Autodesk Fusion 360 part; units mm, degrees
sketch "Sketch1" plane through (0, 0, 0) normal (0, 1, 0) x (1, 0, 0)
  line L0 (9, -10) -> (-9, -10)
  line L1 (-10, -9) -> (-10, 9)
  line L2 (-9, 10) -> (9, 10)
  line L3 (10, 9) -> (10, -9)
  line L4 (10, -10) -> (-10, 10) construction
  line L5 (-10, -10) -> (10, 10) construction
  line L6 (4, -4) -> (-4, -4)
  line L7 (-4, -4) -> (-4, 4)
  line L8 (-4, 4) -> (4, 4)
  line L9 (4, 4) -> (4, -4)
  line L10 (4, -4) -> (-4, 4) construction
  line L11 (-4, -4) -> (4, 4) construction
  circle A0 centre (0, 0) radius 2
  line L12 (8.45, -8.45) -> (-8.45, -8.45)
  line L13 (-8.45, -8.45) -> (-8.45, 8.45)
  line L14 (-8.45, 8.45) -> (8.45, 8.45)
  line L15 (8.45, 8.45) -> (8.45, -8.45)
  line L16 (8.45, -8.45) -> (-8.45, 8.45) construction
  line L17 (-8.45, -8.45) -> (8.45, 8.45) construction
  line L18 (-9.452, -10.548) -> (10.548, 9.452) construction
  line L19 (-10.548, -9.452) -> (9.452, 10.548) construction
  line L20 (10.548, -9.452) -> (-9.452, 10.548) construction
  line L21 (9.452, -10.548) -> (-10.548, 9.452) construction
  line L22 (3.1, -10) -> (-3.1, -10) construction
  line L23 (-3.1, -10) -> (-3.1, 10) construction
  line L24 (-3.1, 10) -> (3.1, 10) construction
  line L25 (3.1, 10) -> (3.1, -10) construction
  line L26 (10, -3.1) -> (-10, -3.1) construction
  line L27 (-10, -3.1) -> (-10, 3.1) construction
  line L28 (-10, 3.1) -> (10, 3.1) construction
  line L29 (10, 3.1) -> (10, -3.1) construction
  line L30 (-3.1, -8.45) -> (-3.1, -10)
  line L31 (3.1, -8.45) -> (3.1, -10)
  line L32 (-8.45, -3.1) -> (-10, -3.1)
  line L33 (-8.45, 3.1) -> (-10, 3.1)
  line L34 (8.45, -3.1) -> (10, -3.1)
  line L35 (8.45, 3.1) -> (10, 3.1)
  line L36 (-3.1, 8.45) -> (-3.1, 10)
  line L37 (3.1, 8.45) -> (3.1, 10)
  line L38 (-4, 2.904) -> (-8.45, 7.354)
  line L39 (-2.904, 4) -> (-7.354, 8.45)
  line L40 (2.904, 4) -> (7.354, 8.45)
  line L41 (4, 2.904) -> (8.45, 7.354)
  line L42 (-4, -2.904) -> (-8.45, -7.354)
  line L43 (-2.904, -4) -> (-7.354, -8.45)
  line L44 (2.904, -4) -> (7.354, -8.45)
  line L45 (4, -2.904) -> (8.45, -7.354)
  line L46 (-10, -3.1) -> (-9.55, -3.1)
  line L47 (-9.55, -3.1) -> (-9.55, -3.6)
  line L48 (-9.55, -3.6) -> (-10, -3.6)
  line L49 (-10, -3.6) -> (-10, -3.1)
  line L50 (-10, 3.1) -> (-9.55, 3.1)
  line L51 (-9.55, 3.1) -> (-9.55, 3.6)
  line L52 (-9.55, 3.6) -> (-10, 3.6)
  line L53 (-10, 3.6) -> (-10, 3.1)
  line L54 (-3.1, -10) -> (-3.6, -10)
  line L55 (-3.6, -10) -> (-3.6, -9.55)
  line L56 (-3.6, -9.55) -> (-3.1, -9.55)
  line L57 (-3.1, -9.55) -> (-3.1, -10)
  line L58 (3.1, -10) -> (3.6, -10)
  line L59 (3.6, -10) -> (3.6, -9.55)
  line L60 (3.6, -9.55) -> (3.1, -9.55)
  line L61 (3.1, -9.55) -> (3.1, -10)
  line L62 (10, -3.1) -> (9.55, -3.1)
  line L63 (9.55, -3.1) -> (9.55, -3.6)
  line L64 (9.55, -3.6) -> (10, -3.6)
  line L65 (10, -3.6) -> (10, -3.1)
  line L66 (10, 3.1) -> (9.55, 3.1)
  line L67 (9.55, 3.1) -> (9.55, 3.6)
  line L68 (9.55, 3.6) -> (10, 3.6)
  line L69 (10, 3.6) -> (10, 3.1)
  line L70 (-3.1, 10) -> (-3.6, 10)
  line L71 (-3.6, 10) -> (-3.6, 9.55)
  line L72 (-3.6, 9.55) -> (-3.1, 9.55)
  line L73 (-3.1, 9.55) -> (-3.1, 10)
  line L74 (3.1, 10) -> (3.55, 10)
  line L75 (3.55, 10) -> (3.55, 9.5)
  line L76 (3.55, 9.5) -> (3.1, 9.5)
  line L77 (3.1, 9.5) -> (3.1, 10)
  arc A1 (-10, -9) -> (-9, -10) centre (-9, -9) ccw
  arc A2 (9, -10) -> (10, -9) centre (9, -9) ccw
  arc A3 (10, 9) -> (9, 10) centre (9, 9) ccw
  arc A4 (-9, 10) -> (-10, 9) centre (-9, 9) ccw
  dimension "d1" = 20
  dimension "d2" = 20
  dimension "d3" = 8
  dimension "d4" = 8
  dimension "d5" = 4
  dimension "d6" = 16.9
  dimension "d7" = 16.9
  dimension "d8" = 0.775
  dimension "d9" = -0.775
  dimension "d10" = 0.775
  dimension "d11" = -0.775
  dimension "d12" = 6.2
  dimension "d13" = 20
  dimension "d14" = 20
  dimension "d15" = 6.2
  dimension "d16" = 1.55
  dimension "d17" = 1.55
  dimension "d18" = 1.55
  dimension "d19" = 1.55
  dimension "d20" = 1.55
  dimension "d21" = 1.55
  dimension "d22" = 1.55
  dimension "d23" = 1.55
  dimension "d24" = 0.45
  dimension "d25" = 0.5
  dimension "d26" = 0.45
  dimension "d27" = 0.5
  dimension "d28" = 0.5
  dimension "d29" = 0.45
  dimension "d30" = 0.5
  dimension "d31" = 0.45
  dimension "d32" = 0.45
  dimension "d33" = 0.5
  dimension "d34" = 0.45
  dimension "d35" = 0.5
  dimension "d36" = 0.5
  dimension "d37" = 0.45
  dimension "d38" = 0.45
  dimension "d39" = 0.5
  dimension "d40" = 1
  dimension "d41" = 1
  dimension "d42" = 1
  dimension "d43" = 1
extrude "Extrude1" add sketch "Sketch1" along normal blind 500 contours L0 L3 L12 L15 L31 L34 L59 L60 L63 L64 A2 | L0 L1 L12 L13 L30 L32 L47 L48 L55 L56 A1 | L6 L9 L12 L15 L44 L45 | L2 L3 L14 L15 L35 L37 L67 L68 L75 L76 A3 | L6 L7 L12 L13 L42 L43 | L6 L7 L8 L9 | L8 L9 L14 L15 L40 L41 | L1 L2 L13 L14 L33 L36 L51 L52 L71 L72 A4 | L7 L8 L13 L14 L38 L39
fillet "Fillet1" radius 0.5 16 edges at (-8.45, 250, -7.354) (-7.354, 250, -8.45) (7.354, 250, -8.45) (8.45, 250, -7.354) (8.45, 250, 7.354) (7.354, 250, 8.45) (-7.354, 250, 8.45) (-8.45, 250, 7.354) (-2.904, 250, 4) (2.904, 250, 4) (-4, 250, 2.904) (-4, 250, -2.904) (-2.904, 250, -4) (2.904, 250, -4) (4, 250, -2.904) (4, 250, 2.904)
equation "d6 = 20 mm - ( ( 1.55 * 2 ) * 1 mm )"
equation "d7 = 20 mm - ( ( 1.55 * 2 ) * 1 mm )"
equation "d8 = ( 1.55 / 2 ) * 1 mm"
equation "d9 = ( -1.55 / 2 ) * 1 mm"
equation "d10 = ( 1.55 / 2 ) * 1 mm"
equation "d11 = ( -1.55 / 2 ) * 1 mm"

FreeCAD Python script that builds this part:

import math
import FreeCAD as App
import Part
import Sketcher

V = App.Vector


def edges_at(feature, points):
    """Names of the edges that pass closest to the given points."""
    edges = feature.Shape.Edges
    near = lambda p: min(range(len(edges)), key=lambda i: edges[i].distToShape(Part.Vertex(*p))[0])
    return sorted({f"Edge{near(p) + 1}" for p in points})

doc = App.newDocument("Part")
params = doc.addObject("Spreadsheet::Sheet", "Params")
for row, (alias, value) in enumerate([
    ("sketch1_diameter", "4 mm"),
    ("sketch1_radius", "1 mm"),
    ("sketch1_width", "0.5 mm"),
    ("sketch1_width2", "0.45 mm"),
    ("sketch1_width3", "5.4 mm"),
    ("pad1_length", "500 mm"),
    ("fillet_radius", "0.5 mm"),
], start=1):
    params.set(f"A{row}", alias)
    params.set(f"B{row}", "=" + value)
    params.setAlias(f"B{row}", alias)

body = doc.addObject("PartDesign::Body", "Body")

# Sketch on XZ plane
sketch1 = doc.addObject("Sketcher::SketchObject", "Sketch")
body.addObject(sketch1)
sketch1.AttachmentSupport = (doc.XZ_Plane, [""])
sketch1.MapMode = "FlatFace"
sketch1.addGeometry([
    Part.LineSegment(V(3.6, 10, 0), V(9, 10, 0)),  # 0
    Part.ArcOfCircle(Part.Circle(V(9, 9, 0), V(0, 0, 1), 1), math.radians(0), math.radians(90)),  # 1
    Part.LineSegment(V(10, 9, 0), V(10, 3.6, 0)),  # 2
    Part.LineSegment(V(10, 3.6, 0), V(9.55, 3.6, 0)),  # 3
    Part.LineSegment(V(9.55, 3.6, 0), V(9.55, 3.1, 0)),  # 4
    Part.LineSegment(V(9.55, 3.1, 0), V(8.45, 3.1, 0)),  # 5
    Part.LineSegment(V(8.45, 3.1, 0), V(8.45, 7.35, 0)),  # 6
    Part.LineSegment(V(8.45, 7.35, 0), V(4, 2.9, 0)),  # 7
    Part.LineSegment(V(4, 2.9, 0), V(4, -2.9, 0)),  # 8
    Part.LineSegment(V(4, -2.9, 0), V(8.45, -7.35, 0)),  # 9
    Part.LineSegment(V(8.45, -7.35, 0), V(8.45, -3.1, 0)),  # 10
    Part.LineSegment(V(8.45, -3.1, 0), V(9.55, -3.1, 0)),  # 11
    Part.LineSegment(V(9.55, -3.1, 0), V(9.55, -3.6, 0)),  # 12
    Part.LineSegment(V(9.55, -3.6, 0), V(10, -3.6, 0)),  # 13
    Part.LineSegment(V(10, -3.6, 0), V(10, -9, 0)),  # 14
    Part.ArcOfCircle(Part.Circle(V(9, -9, 0), V(0, 0, 1), 1), math.radians(-90), math.radians(0)),  # 15
    Part.LineSegment(V(9, -10, 0), V(3.55, -10, 0)),  # 16
    Part.LineSegment(V(3.55, -10, 0), V(3.55, -9.5, 0)),  # 17
    Part.LineSegment(V(3.55, -9.5, 0), V(3.1, -9.5, 0)),  # 18
    Part.LineSegment(V(3.1, -9.5, 0), V(3.1, -8.45, 0)),  # 19
    Part.LineSegment(V(3.1, -8.45, 0), V(7.35, -8.45, 0)),  # 20
    Part.LineSegment(V(7.35, -8.45, 0), V(2.9, -4, 0)),  # 21
    Part.LineSegment(V(2.9, -4, 0), V(-2.9, -4, 0)),  # 22
    Part.LineSegment(V(-2.9, -4, 0), V(-7.35, -8.45, 0)),  # 23
    Part.LineSegment(V(-7.35, -8.45, 0), V(-3.1, -8.45, 0)),  # 24
    Part.LineSegment(V(-3.1, -8.45, 0), V(-3.1, -9.55, 0)),  # 25
    Part.LineSegment(V(-3.1, -9.55, 0), V(-3.6, -9.55, 0)),  # 26
    Part.LineSegment(V(-3.6, -9.55, 0), V(-3.6, -10, 0)),  # 27
    Part.LineSegment(V(-3.6, -10, 0), V(-9, -10, 0)),  # 28
    Part.ArcOfCircle(Part.Circle(V(-9, -9, 0), V(0, 0, 1), 1), math.radians(180), math.radians(270)),  # 29
    Part.LineSegment(V(-10, -9, 0), V(-10, -3.6, 0)),  # 30
    Part.LineSegment(V(-10, -3.6, 0), V(-9.55, -3.6, 0)),  # 31
    Part.LineSegment(V(-9.55, -3.6, 0), V(-9.55, -3.1, 0)),  # 32
    Part.LineSegment(V(-9.55, -3.1, 0), V(-8.45, -3.1, 0)),  # 33
    Part.LineSegment(V(-8.45, -3.1, 0), V(-8.45, -7.35, 0)),  # 34
    Part.LineSegment(V(-8.45, -7.35, 0), V(-4, -2.9, 0)),  # 35
    Part.LineSegment(V(-4, -2.9, 0), V(-4, 2.9, 0)),  # 36
    Part.LineSegment(V(-4, 2.9, 0), V(-8.45, 7.35, 0)),  # 37
    Part.LineSegment(V(-8.45, 7.35, 0), V(-8.45, 3.1, 0)),  # 38
    Part.LineSegment(V(-8.45, 3.1, 0), V(-9.55, 3.1, 0)),  # 39
    Part.LineSegment(V(-9.55, 3.1, 0), V(-9.55, 3.6, 0)),  # 40
    Part.LineSegment(V(-9.55, 3.6, 0), V(-10, 3.6, 0)),  # 41
    Part.LineSegment(V(-10, 3.6, 0), V(-10, 9, 0)),  # 42
    Part.ArcOfCircle(Part.Circle(V(-9, 9, 0), V(0, 0, 1), 1), math.radians(90), math.radians(180)),  # 43
    Part.LineSegment(V(-9, 10, 0), V(-3.6, 10, 0)),  # 44
    Part.LineSegment(V(-3.6, 10, 0), V(-3.6, 9.55, 0)),  # 45
    Part.LineSegment(V(-3.6, 9.55, 0), V(-3.1, 9.55, 0)),  # 46
    Part.LineSegment(V(-3.1, 9.55, 0), V(-3.1, 8.45, 0)),  # 47
    Part.LineSegment(V(-3.1, 8.45, 0), V(-7.35, 8.45, 0)),  # 48
    Part.LineSegment(V(-7.35, 8.45, 0), V(-2.9, 4, 0)),  # 49
    Part.LineSegment(V(-2.9, 4, 0), V(2.9, 4, 0)),  # 50
    Part.LineSegment(V(2.9, 4, 0), V(7.35, 8.45, 0)),  # 51
    Part.LineSegment(V(7.35, 8.45, 0), V(3.1, 8.45, 0)),  # 52
    Part.LineSegment(V(3.1, 8.45, 0), V(3.1, 9.55, 0)),  # 53
    Part.LineSegment(V(3.1, 9.55, 0), V(3.6, 9.55, 0)),  # 54
    Part.LineSegment(V(3.6, 9.55, 0), V(3.6, 10, 0)),  # 55
    Part.Circle(V(0, 0, 0), V(0, 0, 1), 2),  # 56
], False)
sketch1.addConstraint([
    Sketcher.Constraint("Tangent", 0, 2, 1, 2),
    Sketcher.Constraint("Tangent", 1, 1, 2, 1),
    Sketcher.Constraint("Coincident", 2, 2, 3, 1),
    Sketcher.Constraint("Coincident", 3, 2, 4, 1),
    Sketcher.Constraint("Coincident", 4, 2, 5, 1),
    Sketcher.Constraint("Coincident", 5, 2, 6, 1),
    Sketcher.Constraint("Coincident", 6, 2, 7, 1),
    Sketcher.Constraint("Coincident", 7, 2, 8, 1),
    Sketcher.Constraint("Coincident", 8, 2, 9, 1),
    Sketcher.Constraint("Coincident", 9, 2, 10, 1),
    Sketcher.Constraint("Coincident", 10, 2, 11, 1),
    Sketcher.Constraint("Coincident", 11, 2, 12, 1),
    Sketcher.Constraint("Coincident", 12, 2, 13, 1),
    Sketcher.Constraint("Coincident", 13, 2, 14, 1),
    Sketcher.Constraint("Tangent", 14, 2, 15, 2),
    Sketcher.Constraint("Tangent", 15, 1, 16, 1),
    Sketcher.Constraint("Coincident", 16, 2, 17, 1),
    Sketcher.Constraint("Coincident", 17, 2, 18, 1),
    Sketcher.Constraint("Coincident", 18, 2, 19, 1),
    Sketcher.Constraint("Coincident", 19, 2, 20, 1),
    Sketcher.Constraint("Coincident", 20, 2, 21, 1),
    Sketcher.Constraint("Coincident", 21, 2, 22, 1),
    Sketcher.Constraint("Coincident", 22, 2, 23, 1),
    Sketcher.Constraint("Coincident", 23, 2, 24, 1),
    Sketcher.Constraint("Coincident", 24, 2, 25, 1),
    Sketcher.Constraint("Coincident", 25, 2, 26, 1),
    Sketcher.Constraint("Coincident", 26, 2, 27, 1),
    Sketcher.Constraint("Coincident", 27, 2, 28, 1),
    Sketcher.Constraint("Tangent", 28, 2, 29, 2),
    Sketcher.Constraint("Tangent", 29, 1, 30, 1),
    Sketcher.Constraint("Coincident", 30, 2, 31, 1),
    Sketcher.Constraint("Coincident", 31, 2, 32, 1),
    Sketcher.Constraint("Coincident", 32, 2, 33, 1),
    Sketcher.Constraint("Coincident", 33, 2, 34, 1),
    Sketcher.Constraint("Coincident", 34, 2, 35, 1),
    Sketcher.Constraint("Coincident", 35, 2, 36, 1),
    Sketcher.Constraint("Coincident", 36, 2, 37, 1),
    Sketcher.Constraint("Coincident", 37, 2, 38, 1),
    Sketcher.Constraint("Coincident", 38, 2, 39, 1),
    Sketcher.Constraint("Coincident", 39, 2, 40, 1),
    Sketcher.Constraint("Coincident", 40, 2, 41, 1),
    Sketcher.Constraint("Coincident", 41, 2, 42, 1),
    Sketcher.Constraint("Tangent", 42, 2, 43, 2),
    Sketcher.Constraint("Tangent", 43, 1, 44, 1),
    Sketcher.Constraint("Coincident", 44, 2, 45, 1),
    Sketcher.Constraint("Coincident", 45, 2, 46, 1),
    Sketcher.Constraint("Coincident", 46, 2, 47, 1),
    Sketcher.Constraint("Coincident", 47, 2, 48, 1),
    Sketcher.Constraint("Coincident", 48, 2, 49, 1),
    Sketcher.Constraint("Coincident", 49, 2, 50, 1),
    Sketcher.Constraint("Coincident", 50, 2, 51, 1),
    Sketcher.Constraint("Coincident", 51, 2, 52, 1),
    Sketcher.Constraint("Coincident", 52, 2, 53, 1),
    Sketcher.Constraint("Coincident", 53, 2, 54, 1),
    Sketcher.Constraint("Coincident", 54, 2, 55, 1),
    Sketcher.Constraint("Coincident", 55, 2, 0, 1),
    Sketcher.Constraint("Horizontal", 0),
    Sketcher.Constraint("Vertical", 2),
    Sketcher.Constraint("Horizontal", 3),
    Sketcher.Constraint("Vertical", 4),
    Sketcher.Constraint("Horizontal", 5),
    Sketcher.Constraint("Vertical", 6),
    Sketcher.Constraint("Vertical", 8),
    Sketcher.Constraint("Vertical", 10),
    Sketcher.Constraint("Horizontal", 11),
    Sketcher.Constraint("Vertical", 12),
    Sketcher.Constraint("Horizontal", 13),
    Sketcher.Constraint("Vertical", 14),
    Sketcher.Constraint("Horizontal", 16),
    Sketcher.Constraint("Vertical", 17),
    Sketcher.Constraint("Horizontal", 18),
    Sketcher.Constraint("Vertical", 19),
    Sketcher.Constraint("Horizontal", 20),
    Sketcher.Constraint("Horizontal", 22),
    Sketcher.Constraint("Horizontal", 24),
    Sketcher.Constraint("Vertical", 25),
    Sketcher.Constraint("Horizontal", 26),
    Sketcher.Constraint("Vertical", 27),
    Sketcher.Constraint("Horizontal", 28),
    Sketcher.Constraint("Vertical", 30),
    Sketcher.Constraint("Horizontal", 31),
    Sketcher.Constraint("Vertical", 32),
    Sketcher.Constraint("Horizontal", 33),
    Sketcher.Constraint("Vertical", 34),
    Sketcher.Constraint("Vertical", 36),
    Sketcher.Constraint("Vertical", 38),
    Sketcher.Constraint("Horizontal", 39),
    Sketcher.Constraint("Vertical", 40),
    Sketcher.Constraint("Horizontal", 41),
    Sketcher.Constraint("Vertical", 42),
    Sketcher.Constraint("Horizontal", 44),
    Sketcher.Constraint("Vertical", 45),
    Sketcher.Constraint("Horizontal", 46),
    Sketcher.Constraint("Vertical", 47),
    Sketcher.Constraint("Horizontal", 48),
    Sketcher.Constraint("Horizontal", 50),
    Sketcher.Constraint("Horizontal", 52),
    Sketcher.Constraint("Vertical", 53),
    Sketcher.Constraint("Horizontal", 54),
    Sketcher.Constraint("Vertical", 55),
    Sketcher.Constraint("Coincident", 56, 3, -1, 1),
    Sketcher.Constraint("Equal", 1, 15),
    Sketcher.Constraint("Equal", 15, 29),
    Sketcher.Constraint("Equal", 29, 43),
    Sketcher.Constraint("Symmetric", 1, 3, 29, 3, -1, 1),
    Sketcher.Constraint("Symmetric", 15, 3, 43, 3, -1, 1),
    Sketcher.Constraint("Symmetric", 3, 2, 31, 2, -1, 1),
    Sketcher.Constraint("Symmetric", 5, 2, 33, 2, -1, 1),
    Sketcher.Constraint("Symmetric", 7, 2, 35, 2, -1, 1),
    Sketcher.Constraint("Symmetric", 9, 2, 37, 2, -1, 1),
    Sketcher.Constraint("Symmetric", 11, 2, 39, 2, -1, 1),
    Sketcher.Constraint("Symmetric", 19, 2, 47, 2, -1, 1),
    Sketcher.Constraint("Symmetric", 21, 2, 49, 2, -1, 1),
    Sketcher.Constraint("Symmetric", 23, 2, 51, 2, -1, 1),
    Sketcher.Constraint("Symmetric", 25, 2, 53, 2, -1, 1),
    Sketcher.Constraint("Symmetric", 15, 3, 29, 3, -2),
    Sketcher.Constraint("Symmetric", 20, 2, 23, 2, -2),
    Sketcher.Constraint("Symmetric", 12, 2, 31, 2, -2),
    Sketcher.Constraint("Symmetric", 10, 2, 33, 2, -2),
    Sketcher.Constraint("Symmetric", 46, 2, 53, 2, -2),
    Sketcher.Constraint("Perpendicular", 7, 9),
    Sketcher.Constraint("Parallel", 9, 21),
    Sketcher.Constraint("Perpendicular", 21, 23),
    Sketcher.Constraint("Parallel", 23, 35),
    Sketcher.Constraint("Perpendicular", 35, 37),
    Sketcher.Constraint("Parallel", 37, 49),
    Sketcher.Constraint("Perpendicular", 49, 51),
    Sketcher.Constraint("Horizontal", 9, 2, 34, 2),
    Sketcher.Constraint("Horizontal", 8, 2, 35, 2),
    Sketcher.Constraint("Horizontal", 3, 2, 40, 2),
    Sketcher.Constraint("Vertical", 27, 2, 44, 2),
    Sketcher.Constraint("Equal", 13, 18),
    Sketcher.Constraint("Equal", 0, 28),
    Sketcher.Constraint("Equal", 44, 2),
    Sketcher.Constraint("Equal", 54, 4),
    Sketcher.Constraint("Equal", 52, 6),
    Sketcher.Constraint("Equal", 50, 8),
    Sketcher.Constraint("Equal", 12, 17),
    Sketcher.Constraint("Equal", 39, 25),
    Sketcher.Constraint("Equal", 41, 27),
    Sketcher.Constraint("Equal", 9, 21),
    Sketcher.Constraint("Diameter", 56, 4.0),
    Sketcher.Constraint("Radius", 1, 1.0),
    Sketcher.Constraint("DistanceX", 26, 2, 26, 1, 0.5),
    Sketcher.Constraint("DistanceX", -1, 1, 7, 2, 4.0),
    Sketcher.Constraint("DistanceX", 3, 2, 3, 1, 0.45),
    Sketcher.Constraint("DistanceX", 0, 1, 0, 2, 5.4),
    Sketcher.Constraint("DistanceX", 5, 2, 5, 1, 1.1),
    Sketcher.Constraint("DistanceX", -1, 1, 1, 3, 9.0),
    Sketcher.Constraint("DistanceX", 20, 1, 20, 2, 4.254),
])
sketch1.setExpression("Constraints[141]", "Params.sketch1_diameter")
sketch1.setExpression("Constraints[142]", "Params.sketch1_radius")
sketch1.setExpression("Constraints[143]", "Params.sketch1_width")
sketch1.setExpression("Constraints[145]", "Params.sketch1_width2")
sketch1.setExpression("Constraints[146]", "Params.sketch1_width3")
pad1 = doc.addObject("PartDesign::Pad", "Pad")
body.addObject(pad1)
pad1.Profile = sketch1
pad1.setExpression("Length", "Params.pad1_length")
pad1.Reversed = True
doc.recompute()

fillet = doc.addObject("PartDesign::Fillet", "Fillet")
body.addObject(fillet)
fillet.Base = (pad1, edges_at(pad1, [
    (-8.45, 250, -7.354),
    (-7.354, 250, -8.45),
    (7.354, 250, -8.45),
    (8.45, 250, -7.354),
    (8.45, 250, 7.354),
    (7.354, 250, 8.45),
    (-7.354, 250, 8.45),
    (-8.45, 250, 7.354),
    (-2.904, 250, 4),
    (2.904, 250, 4),
    (-4, 250, 2.904),
    (-4, 250, -2.904),
    (-2.904, 250, -4),
    (2.904, 250, -4),
    (4, 250, -2.904),
    (4, 250, 2.904),
]))
fillet.setExpression("Radius", "Params.fillet_radius")

doc.recompute()
